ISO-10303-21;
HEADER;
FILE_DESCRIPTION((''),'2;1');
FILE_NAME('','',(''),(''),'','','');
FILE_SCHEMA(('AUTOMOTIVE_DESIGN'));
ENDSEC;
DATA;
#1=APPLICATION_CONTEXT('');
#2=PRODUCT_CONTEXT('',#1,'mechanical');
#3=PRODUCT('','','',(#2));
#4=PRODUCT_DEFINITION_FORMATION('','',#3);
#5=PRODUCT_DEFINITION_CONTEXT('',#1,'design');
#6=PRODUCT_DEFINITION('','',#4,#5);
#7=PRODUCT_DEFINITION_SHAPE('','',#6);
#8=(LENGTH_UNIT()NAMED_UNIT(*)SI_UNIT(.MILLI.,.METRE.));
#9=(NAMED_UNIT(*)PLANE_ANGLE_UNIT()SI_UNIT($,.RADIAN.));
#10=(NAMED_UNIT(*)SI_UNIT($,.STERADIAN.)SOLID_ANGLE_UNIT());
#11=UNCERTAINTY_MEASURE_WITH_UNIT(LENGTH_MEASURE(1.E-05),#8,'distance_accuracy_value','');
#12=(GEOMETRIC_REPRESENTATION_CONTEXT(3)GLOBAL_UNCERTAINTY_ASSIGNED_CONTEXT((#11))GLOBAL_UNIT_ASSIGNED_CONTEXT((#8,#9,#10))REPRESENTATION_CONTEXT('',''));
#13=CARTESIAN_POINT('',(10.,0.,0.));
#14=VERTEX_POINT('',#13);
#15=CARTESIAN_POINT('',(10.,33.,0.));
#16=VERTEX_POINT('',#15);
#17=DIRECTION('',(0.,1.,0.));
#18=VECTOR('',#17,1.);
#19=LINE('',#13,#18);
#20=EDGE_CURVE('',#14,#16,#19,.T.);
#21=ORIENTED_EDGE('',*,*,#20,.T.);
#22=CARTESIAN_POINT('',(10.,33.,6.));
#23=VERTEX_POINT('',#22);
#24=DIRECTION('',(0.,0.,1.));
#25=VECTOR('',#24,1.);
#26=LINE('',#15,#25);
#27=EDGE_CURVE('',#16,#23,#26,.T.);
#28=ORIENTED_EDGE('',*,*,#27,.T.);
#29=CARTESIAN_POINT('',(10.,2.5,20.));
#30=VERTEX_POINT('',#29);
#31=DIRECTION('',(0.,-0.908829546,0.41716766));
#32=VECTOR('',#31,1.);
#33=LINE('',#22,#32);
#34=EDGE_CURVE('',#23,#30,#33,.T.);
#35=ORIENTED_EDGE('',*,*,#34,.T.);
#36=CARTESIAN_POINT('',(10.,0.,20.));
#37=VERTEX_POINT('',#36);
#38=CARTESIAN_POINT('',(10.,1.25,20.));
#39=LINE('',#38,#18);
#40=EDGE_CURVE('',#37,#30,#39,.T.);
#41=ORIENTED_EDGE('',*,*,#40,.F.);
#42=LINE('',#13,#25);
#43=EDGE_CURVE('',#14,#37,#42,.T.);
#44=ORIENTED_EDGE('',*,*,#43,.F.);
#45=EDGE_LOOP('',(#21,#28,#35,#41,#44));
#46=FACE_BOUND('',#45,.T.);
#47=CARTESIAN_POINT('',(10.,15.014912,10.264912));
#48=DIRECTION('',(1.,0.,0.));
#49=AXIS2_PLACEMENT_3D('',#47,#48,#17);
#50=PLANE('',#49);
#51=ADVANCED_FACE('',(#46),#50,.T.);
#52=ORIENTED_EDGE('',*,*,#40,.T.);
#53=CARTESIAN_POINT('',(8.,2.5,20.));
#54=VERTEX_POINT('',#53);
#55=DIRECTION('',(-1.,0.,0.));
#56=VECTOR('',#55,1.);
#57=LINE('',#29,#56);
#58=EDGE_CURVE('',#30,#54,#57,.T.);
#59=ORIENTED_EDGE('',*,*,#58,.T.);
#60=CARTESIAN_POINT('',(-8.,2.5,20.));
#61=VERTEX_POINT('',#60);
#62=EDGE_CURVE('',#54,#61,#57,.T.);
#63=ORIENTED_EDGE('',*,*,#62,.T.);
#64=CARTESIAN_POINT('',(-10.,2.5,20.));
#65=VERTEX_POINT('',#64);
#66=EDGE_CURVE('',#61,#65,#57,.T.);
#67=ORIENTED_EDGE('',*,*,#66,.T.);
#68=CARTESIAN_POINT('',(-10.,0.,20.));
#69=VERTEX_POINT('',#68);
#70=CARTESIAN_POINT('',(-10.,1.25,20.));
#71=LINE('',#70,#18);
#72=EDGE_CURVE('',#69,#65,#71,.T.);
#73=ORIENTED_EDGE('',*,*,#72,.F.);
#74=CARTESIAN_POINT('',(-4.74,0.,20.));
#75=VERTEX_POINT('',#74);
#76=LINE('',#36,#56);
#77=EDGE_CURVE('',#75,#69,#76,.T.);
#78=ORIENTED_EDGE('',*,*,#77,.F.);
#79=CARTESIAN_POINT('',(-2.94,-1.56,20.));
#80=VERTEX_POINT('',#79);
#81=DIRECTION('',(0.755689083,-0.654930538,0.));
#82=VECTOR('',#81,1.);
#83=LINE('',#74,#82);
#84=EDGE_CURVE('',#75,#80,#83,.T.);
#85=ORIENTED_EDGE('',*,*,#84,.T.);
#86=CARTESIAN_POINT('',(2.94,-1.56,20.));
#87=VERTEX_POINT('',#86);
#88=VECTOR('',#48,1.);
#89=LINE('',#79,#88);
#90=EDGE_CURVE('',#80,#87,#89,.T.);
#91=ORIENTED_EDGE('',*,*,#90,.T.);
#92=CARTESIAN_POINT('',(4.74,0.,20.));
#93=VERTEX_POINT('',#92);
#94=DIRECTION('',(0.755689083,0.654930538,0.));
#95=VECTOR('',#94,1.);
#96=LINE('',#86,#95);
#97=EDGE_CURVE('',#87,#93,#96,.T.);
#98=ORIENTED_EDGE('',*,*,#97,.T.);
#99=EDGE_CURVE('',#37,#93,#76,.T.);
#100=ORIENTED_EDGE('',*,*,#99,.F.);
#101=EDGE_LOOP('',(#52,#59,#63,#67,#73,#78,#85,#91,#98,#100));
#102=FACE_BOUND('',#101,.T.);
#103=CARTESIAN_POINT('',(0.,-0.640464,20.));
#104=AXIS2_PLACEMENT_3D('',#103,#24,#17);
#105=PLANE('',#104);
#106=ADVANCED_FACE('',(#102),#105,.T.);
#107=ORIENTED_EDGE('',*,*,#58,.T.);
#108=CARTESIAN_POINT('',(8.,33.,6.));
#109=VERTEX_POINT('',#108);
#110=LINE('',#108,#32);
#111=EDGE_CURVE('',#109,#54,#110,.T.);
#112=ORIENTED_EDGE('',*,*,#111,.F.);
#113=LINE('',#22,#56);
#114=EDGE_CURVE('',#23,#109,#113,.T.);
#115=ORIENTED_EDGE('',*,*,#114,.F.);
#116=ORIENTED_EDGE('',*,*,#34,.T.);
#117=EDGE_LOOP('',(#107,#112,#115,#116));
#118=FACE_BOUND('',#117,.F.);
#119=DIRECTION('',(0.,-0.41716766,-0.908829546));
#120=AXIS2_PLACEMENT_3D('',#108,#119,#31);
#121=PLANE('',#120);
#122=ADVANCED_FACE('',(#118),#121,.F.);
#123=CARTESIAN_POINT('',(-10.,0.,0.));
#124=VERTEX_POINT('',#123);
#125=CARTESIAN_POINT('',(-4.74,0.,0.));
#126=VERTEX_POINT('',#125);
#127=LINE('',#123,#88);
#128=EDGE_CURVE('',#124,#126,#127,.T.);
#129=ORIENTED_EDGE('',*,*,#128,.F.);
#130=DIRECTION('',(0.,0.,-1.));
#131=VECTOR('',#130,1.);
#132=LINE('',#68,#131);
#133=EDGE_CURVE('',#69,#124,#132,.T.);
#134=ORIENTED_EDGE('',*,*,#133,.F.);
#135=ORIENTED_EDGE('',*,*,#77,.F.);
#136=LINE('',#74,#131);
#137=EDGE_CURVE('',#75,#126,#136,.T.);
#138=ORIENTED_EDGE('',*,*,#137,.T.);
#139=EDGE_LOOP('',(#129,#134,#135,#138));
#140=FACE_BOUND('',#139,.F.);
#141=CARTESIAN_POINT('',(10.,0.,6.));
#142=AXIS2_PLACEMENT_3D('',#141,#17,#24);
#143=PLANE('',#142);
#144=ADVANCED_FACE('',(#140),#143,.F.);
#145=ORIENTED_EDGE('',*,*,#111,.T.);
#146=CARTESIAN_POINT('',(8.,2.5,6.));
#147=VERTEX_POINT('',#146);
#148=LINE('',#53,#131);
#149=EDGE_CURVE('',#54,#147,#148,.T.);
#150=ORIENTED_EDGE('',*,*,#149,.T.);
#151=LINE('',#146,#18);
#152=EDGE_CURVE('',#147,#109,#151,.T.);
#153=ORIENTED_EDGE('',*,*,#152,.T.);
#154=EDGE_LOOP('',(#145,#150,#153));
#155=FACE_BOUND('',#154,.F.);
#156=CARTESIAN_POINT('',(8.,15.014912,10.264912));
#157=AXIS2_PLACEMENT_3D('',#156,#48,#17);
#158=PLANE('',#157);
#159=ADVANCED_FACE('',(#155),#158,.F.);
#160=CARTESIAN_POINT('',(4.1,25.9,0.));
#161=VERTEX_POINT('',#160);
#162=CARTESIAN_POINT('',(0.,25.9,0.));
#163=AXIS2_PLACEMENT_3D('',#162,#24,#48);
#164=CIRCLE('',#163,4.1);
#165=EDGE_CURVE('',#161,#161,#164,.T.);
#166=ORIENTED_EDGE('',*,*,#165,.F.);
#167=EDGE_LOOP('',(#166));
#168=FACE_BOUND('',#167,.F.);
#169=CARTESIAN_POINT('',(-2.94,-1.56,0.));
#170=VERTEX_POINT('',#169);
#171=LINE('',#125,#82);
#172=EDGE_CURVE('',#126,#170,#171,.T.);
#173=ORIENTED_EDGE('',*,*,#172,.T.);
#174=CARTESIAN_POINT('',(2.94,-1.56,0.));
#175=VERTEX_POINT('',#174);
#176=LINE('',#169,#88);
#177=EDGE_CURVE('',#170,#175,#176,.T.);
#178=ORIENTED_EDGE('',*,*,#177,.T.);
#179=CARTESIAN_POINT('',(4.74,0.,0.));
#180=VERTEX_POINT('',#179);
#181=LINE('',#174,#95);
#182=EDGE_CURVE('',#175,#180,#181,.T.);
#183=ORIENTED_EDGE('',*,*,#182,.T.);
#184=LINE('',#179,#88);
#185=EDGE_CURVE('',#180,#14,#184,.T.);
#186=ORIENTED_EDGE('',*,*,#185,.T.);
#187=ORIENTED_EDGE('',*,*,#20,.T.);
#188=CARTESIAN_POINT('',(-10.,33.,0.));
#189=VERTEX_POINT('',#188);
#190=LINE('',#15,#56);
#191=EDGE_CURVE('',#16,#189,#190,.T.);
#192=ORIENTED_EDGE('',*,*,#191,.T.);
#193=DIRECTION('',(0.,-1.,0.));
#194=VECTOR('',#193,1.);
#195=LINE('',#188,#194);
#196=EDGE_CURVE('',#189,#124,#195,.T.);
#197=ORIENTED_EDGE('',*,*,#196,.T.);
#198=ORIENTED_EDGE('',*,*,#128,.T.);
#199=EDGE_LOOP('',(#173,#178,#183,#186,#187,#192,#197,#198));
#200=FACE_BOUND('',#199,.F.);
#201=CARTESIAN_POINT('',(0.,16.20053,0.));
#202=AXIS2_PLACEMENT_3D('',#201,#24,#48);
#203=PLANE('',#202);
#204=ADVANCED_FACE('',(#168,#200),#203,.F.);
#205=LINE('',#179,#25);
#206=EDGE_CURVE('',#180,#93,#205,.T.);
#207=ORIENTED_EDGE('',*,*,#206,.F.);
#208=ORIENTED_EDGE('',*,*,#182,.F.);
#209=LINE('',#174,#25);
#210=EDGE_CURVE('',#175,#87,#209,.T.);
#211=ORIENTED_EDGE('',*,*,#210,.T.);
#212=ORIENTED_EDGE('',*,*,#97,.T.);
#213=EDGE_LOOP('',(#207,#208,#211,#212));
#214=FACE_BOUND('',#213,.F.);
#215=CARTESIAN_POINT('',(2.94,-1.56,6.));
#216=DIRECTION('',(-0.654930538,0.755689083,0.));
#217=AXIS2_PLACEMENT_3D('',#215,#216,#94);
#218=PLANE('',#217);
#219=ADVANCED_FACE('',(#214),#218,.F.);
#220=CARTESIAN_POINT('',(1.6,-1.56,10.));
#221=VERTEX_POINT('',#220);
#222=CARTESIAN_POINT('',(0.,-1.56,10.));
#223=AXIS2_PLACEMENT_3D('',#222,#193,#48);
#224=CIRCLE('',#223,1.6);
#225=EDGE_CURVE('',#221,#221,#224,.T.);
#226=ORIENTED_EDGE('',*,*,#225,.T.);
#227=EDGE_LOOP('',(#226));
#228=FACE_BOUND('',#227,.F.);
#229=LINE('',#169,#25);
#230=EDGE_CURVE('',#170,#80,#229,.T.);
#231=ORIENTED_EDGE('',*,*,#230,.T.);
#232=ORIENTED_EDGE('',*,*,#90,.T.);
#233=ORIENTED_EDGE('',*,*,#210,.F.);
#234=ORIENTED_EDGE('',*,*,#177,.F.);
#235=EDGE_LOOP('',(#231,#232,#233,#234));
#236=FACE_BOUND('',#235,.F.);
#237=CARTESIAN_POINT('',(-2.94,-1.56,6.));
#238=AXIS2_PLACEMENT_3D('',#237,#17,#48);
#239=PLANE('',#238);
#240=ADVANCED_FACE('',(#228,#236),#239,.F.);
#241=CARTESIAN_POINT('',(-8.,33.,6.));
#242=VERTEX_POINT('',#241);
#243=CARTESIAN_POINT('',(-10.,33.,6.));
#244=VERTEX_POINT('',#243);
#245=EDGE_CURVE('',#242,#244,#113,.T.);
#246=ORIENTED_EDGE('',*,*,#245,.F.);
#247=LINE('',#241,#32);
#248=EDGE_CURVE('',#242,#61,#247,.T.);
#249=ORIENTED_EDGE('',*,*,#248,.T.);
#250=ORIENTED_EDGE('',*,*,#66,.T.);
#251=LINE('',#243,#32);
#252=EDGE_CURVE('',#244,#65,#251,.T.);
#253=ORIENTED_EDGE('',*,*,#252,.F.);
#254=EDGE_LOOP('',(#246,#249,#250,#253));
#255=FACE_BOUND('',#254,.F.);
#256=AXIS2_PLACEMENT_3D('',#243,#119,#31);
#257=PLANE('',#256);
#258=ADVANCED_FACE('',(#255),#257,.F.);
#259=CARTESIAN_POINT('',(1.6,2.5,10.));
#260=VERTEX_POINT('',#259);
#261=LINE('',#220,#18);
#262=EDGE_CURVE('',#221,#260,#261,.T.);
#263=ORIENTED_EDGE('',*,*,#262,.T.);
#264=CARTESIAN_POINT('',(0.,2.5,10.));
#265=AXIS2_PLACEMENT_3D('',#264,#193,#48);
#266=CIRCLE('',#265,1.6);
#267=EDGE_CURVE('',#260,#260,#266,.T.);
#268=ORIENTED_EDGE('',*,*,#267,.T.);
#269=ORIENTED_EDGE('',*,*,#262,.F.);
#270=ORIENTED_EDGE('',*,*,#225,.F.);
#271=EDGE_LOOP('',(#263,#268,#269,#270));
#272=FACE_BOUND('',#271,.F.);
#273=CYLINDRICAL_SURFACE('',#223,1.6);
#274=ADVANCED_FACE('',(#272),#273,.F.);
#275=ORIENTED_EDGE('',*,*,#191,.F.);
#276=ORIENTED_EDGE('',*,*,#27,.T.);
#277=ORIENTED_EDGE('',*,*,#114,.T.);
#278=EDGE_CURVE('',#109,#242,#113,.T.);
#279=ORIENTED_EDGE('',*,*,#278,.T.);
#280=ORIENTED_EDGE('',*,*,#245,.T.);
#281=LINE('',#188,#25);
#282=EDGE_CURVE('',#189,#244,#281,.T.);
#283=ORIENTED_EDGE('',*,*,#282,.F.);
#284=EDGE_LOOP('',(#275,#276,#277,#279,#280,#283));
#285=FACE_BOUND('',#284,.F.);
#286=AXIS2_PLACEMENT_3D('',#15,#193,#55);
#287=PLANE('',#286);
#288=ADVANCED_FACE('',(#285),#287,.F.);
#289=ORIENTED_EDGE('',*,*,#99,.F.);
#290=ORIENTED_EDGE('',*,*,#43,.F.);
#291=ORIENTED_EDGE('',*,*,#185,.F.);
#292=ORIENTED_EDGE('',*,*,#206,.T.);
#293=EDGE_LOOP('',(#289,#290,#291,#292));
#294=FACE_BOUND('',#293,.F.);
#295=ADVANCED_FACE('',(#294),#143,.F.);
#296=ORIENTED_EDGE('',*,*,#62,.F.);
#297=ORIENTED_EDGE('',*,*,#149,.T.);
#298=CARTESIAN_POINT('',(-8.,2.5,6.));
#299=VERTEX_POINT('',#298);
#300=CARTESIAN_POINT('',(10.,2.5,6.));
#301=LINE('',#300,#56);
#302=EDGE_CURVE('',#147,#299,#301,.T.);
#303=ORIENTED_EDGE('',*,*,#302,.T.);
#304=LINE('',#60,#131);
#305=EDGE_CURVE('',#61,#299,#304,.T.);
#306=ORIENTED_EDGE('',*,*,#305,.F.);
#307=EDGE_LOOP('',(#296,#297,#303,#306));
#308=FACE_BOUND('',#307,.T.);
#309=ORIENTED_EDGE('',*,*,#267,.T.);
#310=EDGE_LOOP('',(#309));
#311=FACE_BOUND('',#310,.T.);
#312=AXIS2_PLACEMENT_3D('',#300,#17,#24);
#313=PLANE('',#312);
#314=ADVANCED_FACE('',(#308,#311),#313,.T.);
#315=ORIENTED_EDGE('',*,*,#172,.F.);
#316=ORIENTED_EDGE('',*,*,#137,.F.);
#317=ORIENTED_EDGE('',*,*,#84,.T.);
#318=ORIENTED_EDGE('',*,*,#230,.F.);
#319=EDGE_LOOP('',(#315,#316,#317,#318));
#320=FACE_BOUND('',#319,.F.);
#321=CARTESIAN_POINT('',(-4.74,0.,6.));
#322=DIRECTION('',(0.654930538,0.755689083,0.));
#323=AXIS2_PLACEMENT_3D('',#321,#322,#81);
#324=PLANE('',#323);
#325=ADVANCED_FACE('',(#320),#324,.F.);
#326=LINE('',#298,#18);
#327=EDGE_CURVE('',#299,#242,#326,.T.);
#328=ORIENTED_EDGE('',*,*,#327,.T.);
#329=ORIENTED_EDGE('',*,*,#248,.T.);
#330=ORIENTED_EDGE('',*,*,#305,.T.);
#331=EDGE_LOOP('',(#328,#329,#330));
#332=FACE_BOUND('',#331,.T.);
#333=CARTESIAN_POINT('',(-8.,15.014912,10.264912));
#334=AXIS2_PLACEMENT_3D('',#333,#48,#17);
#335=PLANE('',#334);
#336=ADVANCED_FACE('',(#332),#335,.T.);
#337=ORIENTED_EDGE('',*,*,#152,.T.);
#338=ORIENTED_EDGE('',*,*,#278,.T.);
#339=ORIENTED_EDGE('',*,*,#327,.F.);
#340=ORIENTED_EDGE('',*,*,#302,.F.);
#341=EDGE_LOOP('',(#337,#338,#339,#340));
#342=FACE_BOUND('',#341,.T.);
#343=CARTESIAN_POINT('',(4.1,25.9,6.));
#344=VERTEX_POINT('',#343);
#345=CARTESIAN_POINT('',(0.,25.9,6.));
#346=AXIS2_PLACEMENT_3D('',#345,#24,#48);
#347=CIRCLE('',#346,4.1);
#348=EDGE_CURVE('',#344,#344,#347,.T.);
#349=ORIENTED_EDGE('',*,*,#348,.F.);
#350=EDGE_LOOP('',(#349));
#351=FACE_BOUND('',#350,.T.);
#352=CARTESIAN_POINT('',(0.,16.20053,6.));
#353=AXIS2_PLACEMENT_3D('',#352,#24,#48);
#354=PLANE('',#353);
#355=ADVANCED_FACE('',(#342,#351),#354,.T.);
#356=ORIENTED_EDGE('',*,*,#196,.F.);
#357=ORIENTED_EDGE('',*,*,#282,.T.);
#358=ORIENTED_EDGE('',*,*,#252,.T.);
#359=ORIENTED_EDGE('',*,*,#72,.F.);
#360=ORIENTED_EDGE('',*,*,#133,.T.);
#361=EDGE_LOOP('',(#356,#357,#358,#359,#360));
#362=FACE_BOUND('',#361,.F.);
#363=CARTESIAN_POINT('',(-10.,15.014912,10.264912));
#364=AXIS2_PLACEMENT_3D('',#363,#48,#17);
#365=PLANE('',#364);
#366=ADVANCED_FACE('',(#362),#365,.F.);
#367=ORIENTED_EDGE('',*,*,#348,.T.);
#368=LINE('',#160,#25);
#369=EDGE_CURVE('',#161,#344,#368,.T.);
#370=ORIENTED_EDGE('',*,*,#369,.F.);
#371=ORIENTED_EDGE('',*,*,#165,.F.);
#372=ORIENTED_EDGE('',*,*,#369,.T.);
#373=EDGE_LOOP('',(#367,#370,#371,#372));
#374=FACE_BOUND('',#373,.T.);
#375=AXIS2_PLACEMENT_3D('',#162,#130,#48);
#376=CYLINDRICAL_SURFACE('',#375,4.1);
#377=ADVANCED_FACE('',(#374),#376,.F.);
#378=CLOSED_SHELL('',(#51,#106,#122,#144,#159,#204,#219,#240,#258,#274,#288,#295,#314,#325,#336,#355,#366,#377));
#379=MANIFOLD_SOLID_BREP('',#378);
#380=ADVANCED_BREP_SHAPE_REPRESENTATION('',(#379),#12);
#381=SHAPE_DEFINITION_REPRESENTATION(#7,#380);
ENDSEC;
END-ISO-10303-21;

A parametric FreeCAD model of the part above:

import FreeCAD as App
import Part
import Sketcher

V = App.Vector

doc = App.newDocument("Part")
body = doc.addObject("PartDesign::Body", "Body")

sketch1 = body.newObject("Sketcher::SketchObject", "Sketch")
sketch1.AttachmentSupport = (doc.getObject("XY_Plane"), [""])
sketch1.MapMode = "FlatFace"
sketch1.addGeometry(Part.LineSegment(V(-4.7, 0, 0), V(-2.9, -1.6, 0)), False)
sketch1.addGeometry(Part.LineSegment(V(-2.9, -1.6, 0), V(2.9, -1.6, 0)), False)
sketch1.addGeometry(Part.LineSegment(V(2.9, -1.6, 0), V(4.7, 0, 0)), False)
sketch1.addGeometry(Part.LineSegment(V(4.7, 0, 0), V(10, 0, 0)), False)
sketch1.addGeometry(Part.LineSegment(V(10, 0, 0), V(10, 33, 0)), False)
sketch1.addGeometry(Part.LineSegment(V(10, 33, 0), V(-10, 33, 0)), False)
sketch1.addGeometry(Part.LineSegment(V(-10, 33, 0), V(-10, 0, 0)), False)
sketch1.addGeometry(Part.LineSegment(V(-10, 0, 0), V(-4.7, 0, 0)), False)
sketch1.addGeometry(Part.Circle(V(0, 25.9, 0), V(0, 0, 1), 4.1), False)
sketch1.addConstraint(Sketcher.Constraint("Coincident", 0, 2, 1, 1))
sketch1.addConstraint(Sketcher.Constraint("Coincident", 1, 2, 2, 1))
sketch1.addConstraint(Sketcher.Constraint("Coincident", 2, 2, 3, 1))
sketch1.addConstraint(Sketcher.Constraint("Coincident", 3, 2, 4, 1))
sketch1.addConstraint(Sketcher.Constraint("Coincident", 4, 2, 5, 1))
sketch1.addConstraint(Sketcher.Constraint("Coincident", 5, 2, 6, 1))
sketch1.addConstraint(Sketcher.Constraint("Coincident", 6, 2, 7, 1))
sketch1.addConstraint(Sketcher.Constraint("Coincident", 7, 2, 0, 1))
sketch1.addConstraint(Sketcher.Constraint("Horizontal", 1))
sketch1.addConstraint(Sketcher.Constraint("Horizontal", 3))
sketch1.addConstraint(Sketcher.Constraint("Vertical", 4))
sketch1.addConstraint(Sketcher.Constraint("Horizontal", 5))
sketch1.addConstraint(Sketcher.Constraint("Vertical", 6))
sketch1.addConstraint(Sketcher.Constraint("Horizontal", 7))
sketch1.addConstraint(Sketcher.Constraint("Symmetric", 3, 2, 6, 2, -1, 1))
sketch1.addConstraint(Sketcher.Constraint("Symmetric", 2, 2, 7, 2, -2))
sketch1.addConstraint(Sketcher.Constraint("PointOnObject", 8, 3, -2))
sketch1.addConstraint(Sketcher.Constraint("Equal", 0, 2))
sketch1.addConstraint(Sketcher.Constraint("Diameter", 8, 8.2))
sketch1.addConstraint(Sketcher.Constraint("DistanceX", 5, 2, 5, 1, 20.0))
sketch1.addConstraint(Sketcher.Constraint("DistanceY", 4, 1, 4, 2, 33.0))
sketch1.addConstraint(Sketcher.Constraint("DistanceX", 1, 1, 1, 2, 5.88))
sketch1.addConstraint(Sketcher.Constraint("DistanceX", 3, 1, 3, 2, 5.26))
sketch1.addConstraint(Sketcher.Constraint("DistanceY", -1, 1, 8, 3, 25.9))
sketch1.addConstraint(Sketcher.Constraint("DistanceY", 0, 2, -1, 1, 1.56))
pad1 = body.newObject("PartDesign::Pad", "Pad")
pad1.Profile = sketch1
pad1.Length = 6

sketch2 = body.newObject("Sketcher::SketchObject", "Sketch001")
sketch2.AttachmentSupport = (doc.getObject("YZ_Plane"), [""])
sketch2.MapMode = "FlatFace"
sketch2.AttachmentOffset = App.Placement(V(0, 0, 10), App.Rotation())
sketch2.addGeometry(Part.LineSegment(V(0, 20, 0), V(0, 6, 0)), False)
sketch2.addGeometry(Part.LineSegment(V(0, 6, 0), V(2.5, 6, 0)), False)
sketch2.addGeometry(Part.LineSegment(V(2.5, 6, 0), V(2.5, 20, 0)), False)
sketch2.addGeometry(Part.LineSegment(V(2.5, 20, 0), V(0, 20, 0)), False)
sketch2.addConstraint(Sketcher.Constraint("Coincident", 0, 2, 1, 1))
sketch2.addConstraint(Sketcher.Constraint("Coincident", 1, 2, 2, 1))
sketch2.addConstraint(Sketcher.Constraint("Coincident", 2, 2, 3, 1))
sketch2.addConstraint(Sketcher.Constraint("Coincident", 3, 2, 0, 1))
sketch2.addConstraint(Sketcher.Constraint("Vertical", 0))
sketch2.addConstraint(Sketcher.Constraint("Horizontal", 1))
sketch2.addConstraint(Sketcher.Constraint("Vertical", 2))
sketch2.addConstraint(Sketcher.Constraint("Horizontal", 3))
sketch2.addConstraint(Sketcher.Constraint("PointOnObject", 0, 2, -2))
sketch2.addConstraint(Sketcher.Constraint("DistanceY", 0, 2, 0, 1, 14.0))
sketch2.addConstraint(Sketcher.Constraint("DistanceX", 1, 1, 1, 2, 2.5))
sketch2.addConstraint(Sketcher.Constraint("DistanceY", -1, 1, 0, 2, 6.0))
pad2 = body.newObject("PartDesign::Pad", "Pad001")
pad2.Profile = sketch2
pad2.Length = 20
pad2.Reversed = True

sketch3 = body.newObject("Sketcher::SketchObject", "Sketch002")
sketch3.AttachmentSupport = (doc.getObject("XY_Plane"), [""])
sketch3.MapMode = "FlatFace"
sketch3.AttachmentOffset = App.Placement(V(0, 0, 6), App.Rotation())
sketch3.addGeometry(Part.LineSegment(V(4.7, 0, 0), V(-4.7, 0, 0)), False)
sketch3.addGeometry(Part.LineSegment(V(-4.7, 0, 0), V(-2.9, -1.6, 0)), False)
sketch3.addGeometry(Part.LineSegment(V(-2.9, -1.6, 0), V(2.9, -1.6, 0)), False)
sketch3.addGeometry(Part.LineSegment(V(2.9, -1.6, 0), V(4.7, 0, 0)), False)
sketch3.addConstraint(Sketcher.Constraint("Coincident", 0, 2, 1, 1))
sketch3.addConstraint(Sketcher.Constraint("Coincident", 1, 2, 2, 1))
sketch3.addConstraint(Sketcher.Constraint("Coincident", 2, 2, 3, 1))
sketch3.addConstraint(Sketcher.Constraint("Coincident", 3, 2, 0, 1))
sketch3.addConstraint(Sketcher.Constraint("Horizontal", 0))
sketch3.addConstraint(Sketcher.Constraint("Horizontal", 2))
sketch3.addConstraint(Sketcher.Constraint("Symmetric", 0, 2, 3, 2, -1, 1))
sketch3.addConstraint(Sketcher.Constraint("Equal", 1, 3))
sketch3.addConstraint(Sketcher.Constraint("DistanceX", 0, 2, 0, 1, 9.48))
sketch3.addConstraint(Sketcher.Constraint("DistanceX", 2, 1, 2, 2, 5.88))
sketch3.addConstraint(Sketcher.Constraint("DistanceY", 1, 2, -1, 1, 1.56))
pad3 = body.newObject("PartDesign::Pad", "Pad002")
pad3.Profile = sketch3
pad3.Length = 14

sketch4 = body.newObject("Sketcher::SketchObject", "Sketch003")
sketch4.AttachmentSupport = (doc.getObject("YZ_Plane"), [""])
sketch4.MapMode = "FlatFace"
sketch4.AttachmentOffset = App.Placement(V(0, 0, -10), App.Rotation())
sketch4.addGeometry(Part.LineSegment(V(2, 20, 0), V(33, 6, 0)), False)
sketch4.addGeometry(Part.LineSegment(V(33, 6, 0), V(2, 6, 0)), False)
sketch4.addGeometry(Part.LineSegment(V(2, 6, 0), V(2, 20, 0)), False)
sketch4.addConstraint(Sketcher.Constraint("Coincident", 0, 2, 1, 1))
sketch4.addConstraint(Sketcher.Constraint("Coincident", 1, 2, 2, 1))
sketch4.addConstraint(Sketcher.Constraint("Coincident", 2, 2, 0, 1))
sketch4.addConstraint(Sketcher.Constraint("Horizontal", 1))
sketch4.addConstraint(Sketcher.Constraint("Vertical", 2))
sketch4.addConstraint(Sketcher.Constraint("DistanceY", 2, 1, 2, 2, 14.0))
sketch4.addConstraint(Sketcher.Constraint("DistanceX", 1, 2, 1, 1, 30.5))
sketch4.addConstraint(Sketcher.Constraint("DistanceX", -1, 1, 0, 2, 33.0))
sketch4.addConstraint(Sketcher.Constraint("DistanceY", -1, 1, 0, 2, 6.0))
pad4 = body.newObject("PartDesign::Pad", "Pad003")
pad4.Profile = sketch4
pad4.Length = 2
doc.recompute()

linearpattern = body.newObject("PartDesign::LinearPattern", "LinearPattern")
linearpattern.Originals = [pad4]
linearpattern.Direction = (doc.getObject("X_Axis"), [""])
linearpattern.Mode = "offset"
linearpattern.Offset = 18
linearpattern.Occurrences = 2
body.Tip = linearpattern

sketch5 = body.newObject("Sketcher::SketchObject", "Sketch004")
sketch5.AttachmentSupport = (doc.getObject("XZ_Plane"), [""])
sketch5.MapMode = "FlatFace"
sketch5.AttachmentOffset = App.Placement(V(0, 0, 1.56), App.Rotation())
sketch5.addGeometry(Part.Circle(V(0, 10, 0), V(0, 0, 1), 1.6), False)
sketch5.addConstraint(Sketcher.Constraint("PointOnObject", 0, 3, -2))
sketch5.addConstraint(Sketcher.Constraint("Diameter", 0, 3.2))
sketch5.addConstraint(Sketcher.Constraint("DistanceY", -1, 1, 0, 3, 10.0))
pocket1 = body.newObject("PartDesign::Pocket", "Pocket")
pocket1.Profile = sketch5
pocket1.Type = "ThroughAll"

doc.recompute()
